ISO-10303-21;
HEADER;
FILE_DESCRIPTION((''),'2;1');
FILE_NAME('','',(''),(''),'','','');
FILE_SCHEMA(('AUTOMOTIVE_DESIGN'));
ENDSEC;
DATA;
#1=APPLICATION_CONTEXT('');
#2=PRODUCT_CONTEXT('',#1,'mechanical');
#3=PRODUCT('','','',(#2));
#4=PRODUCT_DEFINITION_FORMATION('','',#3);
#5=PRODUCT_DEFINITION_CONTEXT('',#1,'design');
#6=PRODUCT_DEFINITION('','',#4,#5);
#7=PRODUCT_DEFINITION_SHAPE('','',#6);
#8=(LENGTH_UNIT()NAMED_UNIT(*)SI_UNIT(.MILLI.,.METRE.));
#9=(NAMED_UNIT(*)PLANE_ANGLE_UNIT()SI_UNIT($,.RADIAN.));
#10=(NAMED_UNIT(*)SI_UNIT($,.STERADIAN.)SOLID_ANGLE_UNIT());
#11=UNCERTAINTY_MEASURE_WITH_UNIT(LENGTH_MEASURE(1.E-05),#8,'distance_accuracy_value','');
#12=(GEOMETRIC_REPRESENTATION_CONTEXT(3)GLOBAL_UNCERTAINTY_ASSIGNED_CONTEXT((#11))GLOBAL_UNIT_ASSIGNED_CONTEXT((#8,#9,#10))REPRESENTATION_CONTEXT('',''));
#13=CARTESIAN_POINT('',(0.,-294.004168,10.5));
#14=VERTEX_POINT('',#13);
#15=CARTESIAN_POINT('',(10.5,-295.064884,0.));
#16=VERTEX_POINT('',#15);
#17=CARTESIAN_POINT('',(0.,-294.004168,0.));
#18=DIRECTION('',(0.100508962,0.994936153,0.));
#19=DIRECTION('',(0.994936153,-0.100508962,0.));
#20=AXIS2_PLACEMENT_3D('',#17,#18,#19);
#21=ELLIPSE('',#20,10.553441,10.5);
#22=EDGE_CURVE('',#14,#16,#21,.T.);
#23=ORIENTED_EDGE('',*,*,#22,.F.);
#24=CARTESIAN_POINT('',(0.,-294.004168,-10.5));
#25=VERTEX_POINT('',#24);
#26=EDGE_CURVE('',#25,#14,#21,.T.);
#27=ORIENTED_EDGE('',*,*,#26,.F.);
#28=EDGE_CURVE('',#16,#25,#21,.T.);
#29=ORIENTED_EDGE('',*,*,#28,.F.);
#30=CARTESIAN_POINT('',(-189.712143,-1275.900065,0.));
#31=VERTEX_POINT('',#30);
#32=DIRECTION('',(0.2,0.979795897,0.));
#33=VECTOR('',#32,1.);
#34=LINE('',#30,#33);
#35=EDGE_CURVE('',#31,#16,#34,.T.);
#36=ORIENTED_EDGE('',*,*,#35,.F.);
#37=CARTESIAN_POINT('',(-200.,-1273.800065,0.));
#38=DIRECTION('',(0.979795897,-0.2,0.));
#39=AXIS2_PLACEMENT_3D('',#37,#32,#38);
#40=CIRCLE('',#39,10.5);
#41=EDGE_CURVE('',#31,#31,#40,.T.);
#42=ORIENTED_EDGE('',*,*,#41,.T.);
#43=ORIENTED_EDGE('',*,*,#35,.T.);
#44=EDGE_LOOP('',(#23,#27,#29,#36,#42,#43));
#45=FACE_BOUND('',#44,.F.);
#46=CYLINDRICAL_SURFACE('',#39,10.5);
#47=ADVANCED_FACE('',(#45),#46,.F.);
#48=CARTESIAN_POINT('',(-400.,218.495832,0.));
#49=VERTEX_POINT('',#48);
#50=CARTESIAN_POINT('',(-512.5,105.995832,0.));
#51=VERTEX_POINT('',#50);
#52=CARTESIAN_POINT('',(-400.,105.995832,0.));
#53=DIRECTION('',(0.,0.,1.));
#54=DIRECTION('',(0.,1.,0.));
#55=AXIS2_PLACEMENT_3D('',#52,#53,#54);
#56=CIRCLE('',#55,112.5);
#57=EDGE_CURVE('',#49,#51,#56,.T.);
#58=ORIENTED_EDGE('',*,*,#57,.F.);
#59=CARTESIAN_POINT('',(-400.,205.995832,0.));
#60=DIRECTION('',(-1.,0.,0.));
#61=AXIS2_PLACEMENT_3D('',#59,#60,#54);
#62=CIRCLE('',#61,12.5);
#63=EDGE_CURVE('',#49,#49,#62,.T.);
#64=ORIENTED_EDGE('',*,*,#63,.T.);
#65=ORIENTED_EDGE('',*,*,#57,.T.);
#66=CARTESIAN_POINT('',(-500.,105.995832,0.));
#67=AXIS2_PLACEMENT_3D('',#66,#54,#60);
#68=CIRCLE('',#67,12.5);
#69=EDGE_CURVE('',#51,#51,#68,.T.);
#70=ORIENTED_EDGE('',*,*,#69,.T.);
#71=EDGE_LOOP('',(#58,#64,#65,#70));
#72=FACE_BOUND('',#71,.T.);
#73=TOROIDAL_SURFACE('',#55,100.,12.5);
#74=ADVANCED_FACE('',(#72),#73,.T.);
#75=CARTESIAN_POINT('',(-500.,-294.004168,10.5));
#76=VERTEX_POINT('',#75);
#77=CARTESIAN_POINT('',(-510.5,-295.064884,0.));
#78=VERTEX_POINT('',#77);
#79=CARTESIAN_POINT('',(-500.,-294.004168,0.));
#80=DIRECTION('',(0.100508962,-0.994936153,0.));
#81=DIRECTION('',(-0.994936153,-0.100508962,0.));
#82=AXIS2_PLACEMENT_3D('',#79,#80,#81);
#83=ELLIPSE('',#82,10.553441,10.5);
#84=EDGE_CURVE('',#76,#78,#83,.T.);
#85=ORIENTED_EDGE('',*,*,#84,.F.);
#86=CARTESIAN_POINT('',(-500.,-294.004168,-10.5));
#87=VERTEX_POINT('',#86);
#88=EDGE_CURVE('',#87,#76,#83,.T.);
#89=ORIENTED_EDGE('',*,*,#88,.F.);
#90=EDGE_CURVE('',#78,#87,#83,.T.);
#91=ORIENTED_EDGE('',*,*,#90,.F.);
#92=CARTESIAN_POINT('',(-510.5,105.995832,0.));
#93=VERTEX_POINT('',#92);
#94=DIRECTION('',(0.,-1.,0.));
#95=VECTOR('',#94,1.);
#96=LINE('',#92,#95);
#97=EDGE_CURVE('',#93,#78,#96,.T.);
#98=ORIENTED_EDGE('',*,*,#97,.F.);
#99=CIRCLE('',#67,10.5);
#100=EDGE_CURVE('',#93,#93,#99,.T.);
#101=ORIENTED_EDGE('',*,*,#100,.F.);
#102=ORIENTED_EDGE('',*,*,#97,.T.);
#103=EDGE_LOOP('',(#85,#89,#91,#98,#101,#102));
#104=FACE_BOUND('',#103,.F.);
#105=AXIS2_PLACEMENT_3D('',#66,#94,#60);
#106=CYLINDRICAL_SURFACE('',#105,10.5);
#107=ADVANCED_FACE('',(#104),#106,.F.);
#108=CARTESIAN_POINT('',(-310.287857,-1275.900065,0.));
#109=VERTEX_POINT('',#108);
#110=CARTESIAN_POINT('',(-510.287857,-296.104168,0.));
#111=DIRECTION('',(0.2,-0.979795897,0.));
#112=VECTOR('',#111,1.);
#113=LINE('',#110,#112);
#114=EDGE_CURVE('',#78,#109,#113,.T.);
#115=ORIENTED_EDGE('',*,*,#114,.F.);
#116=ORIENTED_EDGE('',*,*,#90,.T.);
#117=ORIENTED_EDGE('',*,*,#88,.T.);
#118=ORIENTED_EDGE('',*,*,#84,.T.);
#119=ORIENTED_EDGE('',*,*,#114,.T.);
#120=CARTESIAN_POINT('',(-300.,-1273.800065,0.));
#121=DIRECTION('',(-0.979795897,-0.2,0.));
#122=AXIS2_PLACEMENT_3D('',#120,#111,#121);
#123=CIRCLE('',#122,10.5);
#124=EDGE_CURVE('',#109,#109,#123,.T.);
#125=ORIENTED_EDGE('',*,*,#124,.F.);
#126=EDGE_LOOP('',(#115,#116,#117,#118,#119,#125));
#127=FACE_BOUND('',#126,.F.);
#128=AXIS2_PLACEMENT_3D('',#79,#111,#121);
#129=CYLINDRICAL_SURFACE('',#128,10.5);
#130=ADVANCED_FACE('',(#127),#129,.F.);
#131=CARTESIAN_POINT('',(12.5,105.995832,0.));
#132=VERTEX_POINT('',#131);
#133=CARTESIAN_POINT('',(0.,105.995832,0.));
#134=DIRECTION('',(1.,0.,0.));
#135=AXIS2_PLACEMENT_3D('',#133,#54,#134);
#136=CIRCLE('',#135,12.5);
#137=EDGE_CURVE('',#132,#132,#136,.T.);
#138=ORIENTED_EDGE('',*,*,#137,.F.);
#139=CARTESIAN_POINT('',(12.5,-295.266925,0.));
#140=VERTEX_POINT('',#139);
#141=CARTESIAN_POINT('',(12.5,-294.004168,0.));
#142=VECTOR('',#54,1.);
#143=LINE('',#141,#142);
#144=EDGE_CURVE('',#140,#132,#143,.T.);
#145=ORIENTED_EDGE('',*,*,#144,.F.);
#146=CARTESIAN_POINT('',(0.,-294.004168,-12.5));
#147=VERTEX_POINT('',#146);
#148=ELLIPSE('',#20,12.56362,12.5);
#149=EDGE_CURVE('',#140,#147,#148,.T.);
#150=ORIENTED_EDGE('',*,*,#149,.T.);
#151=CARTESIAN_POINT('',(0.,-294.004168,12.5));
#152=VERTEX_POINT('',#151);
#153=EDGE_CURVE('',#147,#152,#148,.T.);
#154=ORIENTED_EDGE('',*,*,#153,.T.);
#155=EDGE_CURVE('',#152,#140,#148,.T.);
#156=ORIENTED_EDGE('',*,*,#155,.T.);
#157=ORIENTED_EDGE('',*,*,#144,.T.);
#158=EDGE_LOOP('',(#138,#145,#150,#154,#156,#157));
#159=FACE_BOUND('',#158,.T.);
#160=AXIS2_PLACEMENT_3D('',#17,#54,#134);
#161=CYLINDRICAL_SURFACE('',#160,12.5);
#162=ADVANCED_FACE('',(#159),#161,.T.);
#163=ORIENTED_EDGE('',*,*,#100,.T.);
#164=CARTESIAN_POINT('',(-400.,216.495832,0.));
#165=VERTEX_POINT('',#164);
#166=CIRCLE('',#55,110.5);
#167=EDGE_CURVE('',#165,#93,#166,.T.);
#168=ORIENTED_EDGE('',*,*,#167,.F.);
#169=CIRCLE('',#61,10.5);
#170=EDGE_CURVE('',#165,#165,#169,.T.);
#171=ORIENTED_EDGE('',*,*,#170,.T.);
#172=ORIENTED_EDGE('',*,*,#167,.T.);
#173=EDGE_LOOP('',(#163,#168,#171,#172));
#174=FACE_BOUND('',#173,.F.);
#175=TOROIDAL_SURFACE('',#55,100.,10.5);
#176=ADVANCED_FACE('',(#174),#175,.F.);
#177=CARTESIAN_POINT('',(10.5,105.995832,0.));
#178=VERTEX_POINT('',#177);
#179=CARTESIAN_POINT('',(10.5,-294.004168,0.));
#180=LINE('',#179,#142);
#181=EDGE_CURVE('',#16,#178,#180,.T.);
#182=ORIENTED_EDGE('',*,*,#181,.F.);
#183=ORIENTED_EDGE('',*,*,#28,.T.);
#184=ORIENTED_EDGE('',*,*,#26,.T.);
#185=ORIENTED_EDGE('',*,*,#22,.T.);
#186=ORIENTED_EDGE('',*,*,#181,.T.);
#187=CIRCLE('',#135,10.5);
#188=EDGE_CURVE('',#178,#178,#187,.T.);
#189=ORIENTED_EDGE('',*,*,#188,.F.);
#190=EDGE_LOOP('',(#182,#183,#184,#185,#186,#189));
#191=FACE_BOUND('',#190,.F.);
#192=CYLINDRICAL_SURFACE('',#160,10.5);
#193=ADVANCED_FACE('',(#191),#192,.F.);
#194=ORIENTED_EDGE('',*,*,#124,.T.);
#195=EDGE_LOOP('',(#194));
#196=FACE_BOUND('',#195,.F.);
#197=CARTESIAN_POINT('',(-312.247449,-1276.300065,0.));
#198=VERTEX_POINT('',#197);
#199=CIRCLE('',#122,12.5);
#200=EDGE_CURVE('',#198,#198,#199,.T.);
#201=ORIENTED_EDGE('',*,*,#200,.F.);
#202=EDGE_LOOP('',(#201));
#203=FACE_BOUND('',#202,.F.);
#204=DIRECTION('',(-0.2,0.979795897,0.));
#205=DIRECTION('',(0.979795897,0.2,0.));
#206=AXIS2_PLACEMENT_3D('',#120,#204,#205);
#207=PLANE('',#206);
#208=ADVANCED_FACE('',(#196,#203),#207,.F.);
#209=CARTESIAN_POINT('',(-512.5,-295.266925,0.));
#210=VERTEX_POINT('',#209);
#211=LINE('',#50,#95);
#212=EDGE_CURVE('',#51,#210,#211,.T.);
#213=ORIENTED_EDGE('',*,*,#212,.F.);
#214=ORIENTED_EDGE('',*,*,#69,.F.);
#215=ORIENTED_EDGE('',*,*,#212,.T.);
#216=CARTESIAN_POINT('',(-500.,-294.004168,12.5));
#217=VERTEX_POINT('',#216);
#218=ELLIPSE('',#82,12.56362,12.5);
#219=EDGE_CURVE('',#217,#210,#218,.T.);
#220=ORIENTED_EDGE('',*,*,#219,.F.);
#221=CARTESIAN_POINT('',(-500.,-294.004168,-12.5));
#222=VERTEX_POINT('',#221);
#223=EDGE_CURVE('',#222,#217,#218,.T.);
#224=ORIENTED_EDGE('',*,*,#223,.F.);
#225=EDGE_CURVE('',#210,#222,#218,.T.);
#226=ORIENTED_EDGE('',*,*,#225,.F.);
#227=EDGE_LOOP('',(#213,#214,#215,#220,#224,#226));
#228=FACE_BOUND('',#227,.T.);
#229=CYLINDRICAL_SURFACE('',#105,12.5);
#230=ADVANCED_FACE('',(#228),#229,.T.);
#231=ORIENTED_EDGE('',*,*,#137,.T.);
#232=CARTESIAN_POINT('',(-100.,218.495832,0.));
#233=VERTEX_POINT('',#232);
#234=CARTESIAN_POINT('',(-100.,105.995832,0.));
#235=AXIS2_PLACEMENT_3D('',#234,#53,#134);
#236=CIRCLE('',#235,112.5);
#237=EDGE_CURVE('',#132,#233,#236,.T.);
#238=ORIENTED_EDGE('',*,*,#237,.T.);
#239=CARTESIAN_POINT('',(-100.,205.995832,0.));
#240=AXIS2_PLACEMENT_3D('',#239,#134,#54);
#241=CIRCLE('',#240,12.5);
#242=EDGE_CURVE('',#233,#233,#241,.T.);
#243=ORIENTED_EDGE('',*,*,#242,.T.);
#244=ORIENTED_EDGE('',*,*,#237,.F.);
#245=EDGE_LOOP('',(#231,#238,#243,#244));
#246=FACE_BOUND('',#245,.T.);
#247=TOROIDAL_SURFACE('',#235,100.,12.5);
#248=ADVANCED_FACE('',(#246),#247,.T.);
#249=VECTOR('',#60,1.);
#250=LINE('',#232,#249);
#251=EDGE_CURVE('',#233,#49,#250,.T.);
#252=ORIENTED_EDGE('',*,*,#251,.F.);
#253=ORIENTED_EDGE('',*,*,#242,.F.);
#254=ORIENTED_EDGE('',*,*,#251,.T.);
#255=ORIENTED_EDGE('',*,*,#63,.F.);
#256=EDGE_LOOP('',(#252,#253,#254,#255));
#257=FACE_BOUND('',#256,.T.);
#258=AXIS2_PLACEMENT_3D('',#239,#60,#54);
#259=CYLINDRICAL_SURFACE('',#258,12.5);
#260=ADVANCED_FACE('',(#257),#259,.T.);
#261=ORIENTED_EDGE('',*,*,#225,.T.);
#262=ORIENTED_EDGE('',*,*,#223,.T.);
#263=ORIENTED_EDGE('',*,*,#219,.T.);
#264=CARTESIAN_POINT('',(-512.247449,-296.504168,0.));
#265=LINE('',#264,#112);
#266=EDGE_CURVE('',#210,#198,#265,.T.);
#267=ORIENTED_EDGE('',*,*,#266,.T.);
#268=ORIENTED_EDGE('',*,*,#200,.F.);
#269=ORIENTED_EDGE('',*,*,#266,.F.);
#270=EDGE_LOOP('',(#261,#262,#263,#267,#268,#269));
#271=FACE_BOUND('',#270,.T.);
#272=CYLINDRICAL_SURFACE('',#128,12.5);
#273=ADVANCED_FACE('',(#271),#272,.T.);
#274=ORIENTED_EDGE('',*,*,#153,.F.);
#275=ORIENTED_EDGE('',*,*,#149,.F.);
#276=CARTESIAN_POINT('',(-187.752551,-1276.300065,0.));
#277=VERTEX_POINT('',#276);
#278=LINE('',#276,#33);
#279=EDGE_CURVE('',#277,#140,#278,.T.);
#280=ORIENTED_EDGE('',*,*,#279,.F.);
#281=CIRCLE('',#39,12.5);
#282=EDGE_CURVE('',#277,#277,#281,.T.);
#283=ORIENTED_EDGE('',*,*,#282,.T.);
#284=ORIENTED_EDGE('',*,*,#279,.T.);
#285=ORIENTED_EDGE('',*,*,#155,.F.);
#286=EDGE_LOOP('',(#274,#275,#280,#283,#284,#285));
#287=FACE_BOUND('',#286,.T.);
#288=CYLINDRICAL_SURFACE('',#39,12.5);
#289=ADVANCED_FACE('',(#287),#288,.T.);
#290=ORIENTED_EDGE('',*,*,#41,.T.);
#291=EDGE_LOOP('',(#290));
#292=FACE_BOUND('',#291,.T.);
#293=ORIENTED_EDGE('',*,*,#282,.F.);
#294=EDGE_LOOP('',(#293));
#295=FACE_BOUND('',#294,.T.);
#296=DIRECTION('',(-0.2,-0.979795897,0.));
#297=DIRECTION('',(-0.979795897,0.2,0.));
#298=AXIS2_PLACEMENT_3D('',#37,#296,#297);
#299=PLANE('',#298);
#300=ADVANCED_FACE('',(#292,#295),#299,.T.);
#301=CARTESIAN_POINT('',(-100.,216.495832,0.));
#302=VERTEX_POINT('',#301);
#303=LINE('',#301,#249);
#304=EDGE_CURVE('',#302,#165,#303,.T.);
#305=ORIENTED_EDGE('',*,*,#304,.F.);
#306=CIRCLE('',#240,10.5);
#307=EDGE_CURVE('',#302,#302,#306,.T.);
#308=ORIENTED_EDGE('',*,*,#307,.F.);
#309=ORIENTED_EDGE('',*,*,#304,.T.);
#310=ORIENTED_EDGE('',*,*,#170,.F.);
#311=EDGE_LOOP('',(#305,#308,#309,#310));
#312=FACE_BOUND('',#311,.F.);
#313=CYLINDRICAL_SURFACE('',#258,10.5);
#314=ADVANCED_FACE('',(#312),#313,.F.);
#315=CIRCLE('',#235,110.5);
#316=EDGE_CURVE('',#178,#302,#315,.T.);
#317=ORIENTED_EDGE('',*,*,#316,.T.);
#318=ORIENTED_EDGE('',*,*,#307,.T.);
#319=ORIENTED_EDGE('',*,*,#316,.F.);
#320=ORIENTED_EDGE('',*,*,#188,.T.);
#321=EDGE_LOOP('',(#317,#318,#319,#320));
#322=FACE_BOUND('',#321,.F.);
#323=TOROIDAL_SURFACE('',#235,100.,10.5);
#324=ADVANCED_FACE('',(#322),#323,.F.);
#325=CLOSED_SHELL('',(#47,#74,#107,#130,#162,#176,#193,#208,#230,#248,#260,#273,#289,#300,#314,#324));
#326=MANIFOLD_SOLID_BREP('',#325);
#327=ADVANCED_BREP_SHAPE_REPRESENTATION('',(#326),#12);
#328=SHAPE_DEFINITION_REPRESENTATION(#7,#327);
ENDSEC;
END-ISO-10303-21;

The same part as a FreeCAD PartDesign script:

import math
import FreeCAD as App
import Part
import Sketcher
from FreeCAD import Vector

doc = App.newDocument("Part")
body = doc.addObject("PartDesign::Body", "Body")

# Sketch on XZ plane
sketch1 = doc.addObject("Sketcher::SketchObject", "Sketch")
body.addObject(sketch1)
sketch1.AttachmentSupport = (doc.XZ_Plane, [""])
sketch1.MapMode = "FlatFace"
sketch1.addGeometry([
    Part.Circle(Vector(0, 0, 0), Vector(0, 0, 1), 12),
    Part.Circle(Vector(0, 0, 0), Vector(0, 0, 1), 10),
], False)
sketch1.addConstraint([
    Sketcher.Constraint("Coincident", 0, 3, -1, 1),
    Sketcher.Constraint("Coincident", 1, 3, -1, 1),
    Sketcher.Constraint("Diameter", 0, 25.0),
    Sketcher.Constraint("Diameter", 1, 21.0),
])

# Sketch on XY plane
sketch2 = doc.addObject("Sketcher::SketchObject", "Sketch001")
body.addObject(sketch2)
sketch2.AttachmentSupport = (doc.XY_Plane, [""])
sketch2.MapMode = "FlatFace"
sketch2.addGeometry([
    Part.LineSegment(Vector(-200, -1274, 0), Vector(0, -294, 0)),  # 0
    Part.LineSegment(Vector(0, -294, 0), Vector(0, 106, 0)),  # 1
    Part.ArcOfCircle(Part.Circle(Vector(-100, 106, 0), Vector(0, 0, 1), 100), math.radians(0), math.radians(90)),  # 2
    Part.LineSegment(Vector(-100, 206, 0), Vector(-400, 206, 0)),  # 3
    Part.ArcOfCircle(Part.Circle(Vector(-400, 106, 0), Vector(0, 0, 1), 100), math.radians(90), math.radians(180)),  # 4
    Part.LineSegment(Vector(-500, 106, 0), Vector(-500, -294, 0)),  # 5
    Part.LineSegment(Vector(-500, -294, 0), Vector(-300, -1274, 0)),  # 6
], False)
sketch2.addConstraint([
    Sketcher.Constraint("Coincident", 0, 2, 1, 1),
    Sketcher.Constraint("Tangent", 1, 2, 2, 1),
    Sketcher.Constraint("Tangent", 2, 2, 3, 1),
    Sketcher.Constraint("Tangent", 3, 2, 4, 1),
    Sketcher.Constraint("Tangent", 4, 2, 5, 1),
    Sketcher.Constraint("Coincident", 5, 2, 6, 1),
    Sketcher.Constraint("Vertical", 1),
    Sketcher.Constraint("Horizontal", 3),
    Sketcher.Constraint("Vertical", 5),
    Sketcher.Constraint("Equal", 2, 4),
    Sketcher.Constraint("PointOnObject", 0, 2, -2),
    Sketcher.Constraint("Horizontal", 0, 2, 5, 2),
    Sketcher.Constraint("Horizontal", 0, 1, 6, 2),
    Sketcher.Constraint("Equal", 0, 6),
    Sketcher.Constraint("Radius", 2, 100.0),
    Sketcher.Constraint("DistanceX", 3, 2, 3, 1, 300.0),
    Sketcher.Constraint("DistanceY", 1, 1, 1, 2, 400.0),
    Sketcher.Constraint("Distance", 0, 1000.0),
    Sketcher.Constraint("DistanceX", 0, 1, -1, 1, 200.0),
    Sketcher.Constraint("DistanceY", -1, 1, 2, 3, 105.995832),
])
doc.recompute()

additivepipe = doc.addObject("PartDesign::AdditivePipe", "AdditivePipe")
body.addObject(additivepipe)
additivepipe.Profile = sketch1
additivepipe.Spine = (sketch2, ["Edge1", "Edge2", "Edge3", "Edge4", "Edge5", "Edge6", "Edge7"])
additivepipe.Transition = "Right corner"

doc.recompute()
